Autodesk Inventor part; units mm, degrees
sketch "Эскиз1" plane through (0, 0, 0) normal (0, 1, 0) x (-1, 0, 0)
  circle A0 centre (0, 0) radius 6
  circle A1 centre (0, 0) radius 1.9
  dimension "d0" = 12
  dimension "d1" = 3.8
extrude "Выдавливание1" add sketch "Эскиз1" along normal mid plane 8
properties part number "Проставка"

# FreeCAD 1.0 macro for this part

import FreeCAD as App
import Part
import Sketcher
from FreeCAD import Vector
Q = App.Units.Quantity

doc = App.newDocument("Part")
params = doc.addObject("Spreadsheet::Sheet", "Params")
for row, (alias, value) in enumerate([
    ("sketch1_diameter", "12 mm"),
    ("sketch1_diameter2", "3.8 mm"),
    ("pad1_length", "8 mm"),
], start=1):
    params.set(f"A{row}", alias)
    params.set(f"B{row}", "=" + value)
    params.setAlias(f"B{row}", alias)

body = doc.addObject("PartDesign::Body", "Body")

# Sketch on XZ plane
sketch1 = body.newObject("Sketcher::SketchObject", "Sketch")
sketch1.AttachmentSupport = (doc.getObject("XZ_Plane"), [""])
sketch1.MapMode = "FlatFace"
sketch1.addGeometry([
    Part.Circle(Vector(0, 0, 0), Vector(0, 0, 1), 6),
    Part.Circle(Vector(0, 0, 0), Vector(0, 0, 1), 1.9),
], False)
sketch1.addConstraint([
    Sketcher.Constraint("Coincident", 0, 3, -1, 1),
    Sketcher.Constraint("Coincident", 1, 3, -1, 1),
    Sketcher.Constraint("Diameter", 0, Q("12 mm")),
    Sketcher.Constraint("Diameter", 1, Q("3.8 mm")),
])
sketch1.setExpression("Constraints[2]", "Params.sketch1_diameter")
sketch1.setExpression("Constraints[3]", "Params.sketch1_diameter2")
pad1 = body.newObject("PartDesign::Pad", "Pad")
pad1.Profile = sketch1
pad1.setExpression("Length", "Params.pad1_length")
pad1.Midplane = True

doc.recompute()
